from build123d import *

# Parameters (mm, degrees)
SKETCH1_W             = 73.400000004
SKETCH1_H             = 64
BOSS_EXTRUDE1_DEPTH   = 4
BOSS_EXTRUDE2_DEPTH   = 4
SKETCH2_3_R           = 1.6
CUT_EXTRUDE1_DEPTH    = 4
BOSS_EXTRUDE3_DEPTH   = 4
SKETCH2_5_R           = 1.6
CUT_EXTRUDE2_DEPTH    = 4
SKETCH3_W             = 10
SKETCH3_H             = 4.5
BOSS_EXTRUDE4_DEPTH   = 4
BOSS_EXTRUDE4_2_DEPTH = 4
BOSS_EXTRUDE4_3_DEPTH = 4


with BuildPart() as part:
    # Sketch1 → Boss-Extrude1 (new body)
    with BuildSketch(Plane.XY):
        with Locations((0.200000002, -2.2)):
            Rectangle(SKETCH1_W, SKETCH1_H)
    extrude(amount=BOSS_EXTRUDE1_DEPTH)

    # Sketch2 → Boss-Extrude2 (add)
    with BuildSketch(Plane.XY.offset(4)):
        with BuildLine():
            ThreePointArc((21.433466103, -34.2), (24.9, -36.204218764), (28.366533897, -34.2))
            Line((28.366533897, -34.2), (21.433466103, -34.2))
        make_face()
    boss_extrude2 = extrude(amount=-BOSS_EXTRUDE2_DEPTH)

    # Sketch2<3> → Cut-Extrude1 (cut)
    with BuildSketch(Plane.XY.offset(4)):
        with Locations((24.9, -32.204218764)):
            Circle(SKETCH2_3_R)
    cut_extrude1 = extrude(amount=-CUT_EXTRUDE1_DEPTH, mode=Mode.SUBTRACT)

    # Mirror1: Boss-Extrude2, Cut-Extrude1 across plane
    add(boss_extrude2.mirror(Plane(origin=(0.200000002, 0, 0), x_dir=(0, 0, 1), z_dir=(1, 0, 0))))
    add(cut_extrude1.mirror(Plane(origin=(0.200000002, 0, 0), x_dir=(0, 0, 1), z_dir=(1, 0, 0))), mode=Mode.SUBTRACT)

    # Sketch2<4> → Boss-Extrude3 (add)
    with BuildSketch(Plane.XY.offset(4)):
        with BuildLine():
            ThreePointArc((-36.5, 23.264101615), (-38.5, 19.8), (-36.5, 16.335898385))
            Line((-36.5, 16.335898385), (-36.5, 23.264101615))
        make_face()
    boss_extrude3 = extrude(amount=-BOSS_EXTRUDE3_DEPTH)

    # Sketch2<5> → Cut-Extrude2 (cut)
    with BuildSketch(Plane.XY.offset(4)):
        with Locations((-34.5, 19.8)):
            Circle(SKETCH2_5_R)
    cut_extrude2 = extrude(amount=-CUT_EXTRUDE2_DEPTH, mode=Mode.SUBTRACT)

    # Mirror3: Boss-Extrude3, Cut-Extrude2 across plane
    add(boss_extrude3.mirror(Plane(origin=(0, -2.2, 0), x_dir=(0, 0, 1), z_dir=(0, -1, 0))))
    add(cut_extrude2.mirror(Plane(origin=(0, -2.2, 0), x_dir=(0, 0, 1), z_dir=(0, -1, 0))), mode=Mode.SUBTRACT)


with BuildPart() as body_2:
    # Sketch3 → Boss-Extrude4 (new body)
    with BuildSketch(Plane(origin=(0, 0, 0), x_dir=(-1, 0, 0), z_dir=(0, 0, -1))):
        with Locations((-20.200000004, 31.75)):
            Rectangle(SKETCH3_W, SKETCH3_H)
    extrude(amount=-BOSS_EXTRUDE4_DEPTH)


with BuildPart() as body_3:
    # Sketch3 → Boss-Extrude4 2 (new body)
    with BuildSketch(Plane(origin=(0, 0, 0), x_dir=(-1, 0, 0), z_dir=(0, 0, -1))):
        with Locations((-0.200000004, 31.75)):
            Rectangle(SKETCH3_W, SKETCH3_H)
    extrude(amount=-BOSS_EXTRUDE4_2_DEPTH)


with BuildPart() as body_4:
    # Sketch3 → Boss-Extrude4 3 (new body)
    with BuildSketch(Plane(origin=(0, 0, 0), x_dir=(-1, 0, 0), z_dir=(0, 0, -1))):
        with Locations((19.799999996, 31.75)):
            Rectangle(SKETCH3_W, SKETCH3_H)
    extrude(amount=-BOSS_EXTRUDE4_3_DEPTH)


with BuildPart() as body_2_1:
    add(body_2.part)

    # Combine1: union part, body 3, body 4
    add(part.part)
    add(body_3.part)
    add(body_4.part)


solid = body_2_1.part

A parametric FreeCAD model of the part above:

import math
import FreeCAD as App
import Part
import Sketcher

V = App.Vector
Q = App.Units.Quantity

doc = App.newDocument("Part")
body = doc.addObject("PartDesign::Body", "Body")

sketch1 = body.newObject("Sketcher::SketchObject", "Sketch")
sketch1.AttachmentSupport = (doc.getObject("XY_Plane"), [""])
sketch1.MapMode = "FlatFace"
sketch1.addGeometry([
    Part.LineSegment(V(-36, 30, 0), V(-36, -34, 0)),
    Part.LineSegment(V(-36, -34, 0), V(37, -34, 0)),
    Part.LineSegment(V(37, -34, 0), V(37, 30, 0)),
    Part.LineSegment(V(37, 30, 0), V(-36, 30, 0)),
], False)
sketch1.addConstraint([
    Sketcher.Constraint("Coincident", 0, 2, 1, 1),
    Sketcher.Constraint("Coincident", 1, 2, 2, 1),
    Sketcher.Constraint("Coincident", 2, 2, 3, 1),
    Sketcher.Constraint("Coincident", 3, 2, 0, 1),
    Sketcher.Constraint("Vertical", 0),
    Sketcher.Constraint("Horizontal", 1),
    Sketcher.Constraint("Vertical", 2),
    Sketcher.Constraint("Horizontal", 3),
    Sketcher.Constraint("DistanceY", 0, 2, 0, 1, Q("64 mm")),
    Sketcher.Constraint("DistanceX", 1, 1, 1, 2, Q("73.4 mm")),
    Sketcher.Constraint("DistanceX", 0, 2, -1, 1, Q("36.5 mm")),
    Sketcher.Constraint("DistanceY", 0, 2, -1, 1, Q("34.2 mm")),
])
pad1 = body.newObject("PartDesign::Pad", "Pad")
pad1.Profile = sketch1
pad1.Length = 4

sketch2 = body.newObject("Sketcher::SketchObject", "Sketch001")
sketch2.AttachmentSupport = (doc.getObject("XY_Plane"), [""])
sketch2.MapMode = "FlatFace"
sketch2.AttachmentOffset = App.Placement(V(0, 0, 4), App.Rotation())
sketch2.addGeometry([
    Part.ArcOfCircle(Part.Circle(V(24.9, -32.2, 0), V(0, 0, 1), 4), math.radians(-150), math.radians(-30)),
    Part.LineSegment(V(28.4, -34.2, 0), V(21.4, -34.2, 0)),
], False)
sketch2.addConstraint([
    Sketcher.Constraint("Coincident", 0, 1, 1, 2),
    Sketcher.Constraint("Coincident", 1, 1, 0, 2),
    Sketcher.Constraint("Horizontal", 1),
    Sketcher.Constraint("Radius", 0, Q("4 mm")),
    Sketcher.Constraint("DistanceX", -1, 1, 0, 3, Q("24.9 mm")),
    Sketcher.Constraint("DistanceY", 0, 1, -1, 1, Q("34.2 mm")),
    Sketcher.Constraint("DistanceX", 1, 2, 1, 1, Q("6.933068 mm")),
])
pad2 = body.newObject("PartDesign::Pad", "Pad001")
pad2.Profile = sketch2
pad2.Length = 4
pad2.Reversed = True

sketch3 = body.newObject("Sketcher::SketchObject", "Sketch002")
sketch3.AttachmentSupport = (doc.getObject("XY_Plane"), [""])
sketch3.MapMode = "FlatFace"
sketch3.AttachmentOffset = App.Placement(V(0, 0, 4), App.Rotation())
sketch3.addGeometry(Part.Circle(V(24.9, -32.2, 0), V(0, 0, 1), 1.6), False)
sketch3.addConstraint([
    Sketcher.Constraint("Diameter", 0, Q("3.2 mm")),
    Sketcher.Constraint("DistanceX", -1, 1, 0, 3, Q("24.9 mm")),
    Sketcher.Constraint("DistanceY", 0, 3, -1, 1, Q("32.204219 mm")),
])
pocket1 = body.newObject("PartDesign::Pocket", "Pocket")
pocket1.Profile = sketch3
pocket1.Length = 4
doc.recompute()

datumplane = body.newObject("PartDesign::Plane", "DatumPlane")
datumplane.AttachmentSupport = (doc.getObject("YZ_Plane"), [""])
datumplane.MapMode = "FlatFace"
datumplane.AttachmentOffset = App.Placement(V(0, 0, 0.2), App.Rotation())
mirrored = body.newObject("PartDesign::Mirrored", "Mirrored")
mirrored.Originals = [pad2, pocket1]
mirrored.MirrorPlane = (datumplane, [""])
body.Tip = mirrored

sketch4 = body.newObject("Sketcher::SketchObject", "Sketch003")
sketch4.AttachmentSupport = (doc.getObject("XY_Plane"), [""])
sketch4.MapMode = "FlatFace"
sketch4.AttachmentOffset = App.Placement(V(0, 0, 4), App.Rotation())
sketch4.addGeometry([
    Part.ArcOfCircle(Part.Circle(V(-34.5, 19.8, 0), V(0, 0, 1), 4), math.radians(120), math.radians(240)),
    Part.LineSegment(V(-36.5, 16.3, 0), V(-36.5, 23.3, 0)),
], False)
sketch4.addConstraint([
    Sketcher.Constraint("Coincident", 0, 1, 1, 2),
    Sketcher.Constraint("Coincident", 1, 1, 0, 2),
    Sketcher.Constraint("Vertical", 1),
    Sketcher.Constraint("Radius", 0, Q("4 mm")),
    Sketcher.Constraint("DistanceX", 0, 1, 0, 3, Q("2 mm")),
    Sketcher.Constraint("DistanceX", 0, 3, -1, 1, Q("34.5 mm")),
    Sketcher.Constraint("DistanceY", -1, 1, 0, 3, Q("19.8 mm")),
])
pad3 = body.newObject("PartDesign::Pad", "Pad002")
pad3.Profile = sketch4
pad3.Length = 4
pad3.Reversed = True

sketch5 = body.newObject("Sketcher::SketchObject", "Sketch004")
sketch5.AttachmentSupport = (doc.getObject("XY_Plane"), [""])
sketch5.MapMode = "FlatFace"
sketch5.AttachmentOffset = App.Placement(V(0, 0, 4), App.Rotation())
sketch5.addGeometry(Part.Circle(V(-34.5, 19.8, 0), V(0, 0, 1), 1.6), False)
sketch5.addConstraint([
    Sketcher.Constraint("Diameter", 0, Q("3.2 mm")),
    Sketcher.Constraint("DistanceX", 0, 3, -1, 1, Q("34.5 mm")),
    Sketcher.Constraint("DistanceY", -1, 1, 0, 3, Q("19.8 mm")),
])
pocket2 = body.newObject("PartDesign::Pocket", "Pocket001")
pocket2.Profile = sketch5
pocket2.Length = 4
doc.recompute()

datumplane2 = body.newObject("PartDesign::Plane", "DatumPlane001")
datumplane2.AttachmentSupport = (doc.getObject("XZ_Plane"), [""])
datumplane2.MapMode = "FlatFace"
datumplane2.AttachmentOffset = App.Placement(V(0, 0, 2.2), App.Rotation())
mirrored2 = body.newObject("PartDesign::Mirrored", "Mirrored001")
mirrored2.Originals = [pad3, pocket2]
mirrored2.MirrorPlane = (datumplane2, [""])
body.Tip = mirrored2
body2 = doc.addObject("PartDesign::Body", "Body001")

sketch6 = body2.newObject("Sketcher::SketchObject", "Sketch005")
sketch6.AttachmentSupport = (doc.getObject("XY_Plane001"), [""])
sketch6.MapMode = "FlatFace"
sketch6.addGeometry([
    Part.LineSegment(V(25.2, 34, 0), V(25.2, 29.5, 0)),
    Part.LineSegment(V(25.2, 29.5, 0), V(15.2, 29.5, 0)),
    Part.LineSegment(V(15.2, 29.5, 0), V(15.2, 34, 0)),
    Part.LineSegment(V(15.2, 34, 0), V(25.2, 34, 0)),
], False)
sketch6.addConstraint([
    Sketcher.Constraint("Coincident", 0, 2, 1, 1),
    Sketcher.Constraint("Coincident", 1, 2, 2, 1),
    Sketcher.Constraint("Coincident", 2, 2, 3, 1),
    Sketcher.Constraint("Coincident", 3, 2, 0, 1),
    Sketcher.Constraint("Vertical", 0),
    Sketcher.Constraint("Horizontal", 1),
    Sketcher.Constraint("Vertical", 2),
    Sketcher.Constraint("Horizontal", 3),
    Sketcher.Constraint("DistanceX", 1, 2, 1, 1, Q("10 mm")),
    Sketcher.Constraint("DistanceY", 0, 2, 0, 1, Q("4.5 mm")),
    Sketcher.Constraint("DistanceY", -1, 1, 2, 2, Q("34 mm")),
    Sketcher.Constraint("DistanceX", -1, 1, 0, 2, Q("25.2 mm")),
])
pad4 = body2.newObject("PartDesign::Pad", "Pad003")
pad4.Profile = sketch6
pad4.Length = 4
body3 = doc.addObject("PartDesign::Body", "Body002")

sketch7 = body3.newObject("Sketcher::SketchObject", "Sketch006")
sketch7.AttachmentSupport = (doc.getObject("XY_Plane002"), [""])
sketch7.MapMode = "FlatFace"
sketch7.addGeometry([
    Part.LineSegment(V(5.2, 34, 0), V(5.2, 29.5, 0)),
    Part.LineSegment(V(5.2, 29.5, 0), V(-4.8, 29.5, 0)),
    Part.LineSegment(V(-4.8, 29.5, 0), V(-4.8, 34, 0)),
    Part.LineSegment(V(-4.8, 34, 0), V(5.2, 34, 0)),
], False)
sketch7.addConstraint([
    Sketcher.Constraint("Coincident", 0, 2, 1, 1),
    Sketcher.Constraint("Coincident", 1, 2, 2, 1),
    Sketcher.Constraint("Coincident", 2, 2, 3, 1),
    Sketcher.Constraint("Coincident", 3, 2, 0, 1),
    Sketcher.Constraint("Vertical", 0),
    Sketcher.Constraint("Horizontal", 1),
    Sketcher.Constraint("Vertical", 2),
    Sketcher.Constraint("Horizontal", 3),
    Sketcher.Constraint("DistanceX", 1, 2, 1, 1, Q("10 mm")),
    Sketcher.Constraint("DistanceY", 0, 2, 0, 1, Q("4.5 mm")),
    Sketcher.Constraint("DistanceY", -1, 1, 2, 2, Q("34 mm")),
    Sketcher.Constraint("DistanceX", -1, 1, 0, 2, Q("5.2 mm")),
])
pad5 = body3.newObject("PartDesign::Pad", "Pad004")
pad5.Profile = sketch7
pad5.Length = 4
body4 = doc.addObject("PartDesign::Body", "Body003")

sketch8 = body4.newObject("Sketcher::SketchObject", "Sketch007")
sketch8.AttachmentSupport = (doc.getObject("XY_Plane003"), [""])
sketch8.MapMode = "FlatFace"
sketch8.addGeometry([
    Part.LineSegment(V(-14.8, 34, 0), V(-14.8, 29.5, 0)),
    Part.LineSegment(V(-14.8, 29.5, 0), V(-24.8, 29.5, 0)),
    Part.LineSegment(V(-24.8, 29.5, 0), V(-24.8, 34, 0)),
    Part.LineSegment(V(-24.8, 34, 0), V(-14.8, 34, 0)),
], False)
sketch8.addConstraint([
    Sketcher.Constraint("Coincident", 0, 2, 1, 1),
    Sketcher.Constraint("Coincident", 1, 2, 2, 1),
    Sketcher.Constraint("Coincident", 2, 2, 3, 1),
    Sketcher.Constraint("Coincident", 3, 2, 0, 1),
    Sketcher.Constraint("Vertical", 0),
    Sketcher.Constraint("Horizontal", 1),
    Sketcher.Constraint("Vertical", 2),
    Sketcher.Constraint("Horizontal", 3),
    Sketcher.Constraint("DistanceX", 1, 2, 1, 1, Q("10 mm")),
    Sketcher.Constraint("DistanceY", 0, 2, 0, 1, Q("4.5 mm")),
    Sketcher.Constraint("DistanceY", -1, 1, 2, 2, Q("34 mm")),
    Sketcher.Constraint("DistanceX", 0, 2, -1, 1, Q("14.8 mm")),
])
pad6 = body4.newObject("PartDesign::Pad", "Pad005")
pad6.Profile = sketch8
pad6.Length = 4
doc.recompute()

boolean = body2.newObject("PartDesign::Boolean", "Boolean")
boolean.Type = "Fuse"
boolean.addObjects([body])
doc.recompute()

boolean2 = body2.newObject("PartDesign::Boolean", "Boolean001")
boolean2.Type = "Fuse"
boolean2.addObjects([body3])
doc.recompute()

boolean3 = body2.newObject("PartDesign::Boolean", "Boolean002")
boolean3.Type = "Fuse"
boolean3.addObjects([body4])

doc.recompute()
